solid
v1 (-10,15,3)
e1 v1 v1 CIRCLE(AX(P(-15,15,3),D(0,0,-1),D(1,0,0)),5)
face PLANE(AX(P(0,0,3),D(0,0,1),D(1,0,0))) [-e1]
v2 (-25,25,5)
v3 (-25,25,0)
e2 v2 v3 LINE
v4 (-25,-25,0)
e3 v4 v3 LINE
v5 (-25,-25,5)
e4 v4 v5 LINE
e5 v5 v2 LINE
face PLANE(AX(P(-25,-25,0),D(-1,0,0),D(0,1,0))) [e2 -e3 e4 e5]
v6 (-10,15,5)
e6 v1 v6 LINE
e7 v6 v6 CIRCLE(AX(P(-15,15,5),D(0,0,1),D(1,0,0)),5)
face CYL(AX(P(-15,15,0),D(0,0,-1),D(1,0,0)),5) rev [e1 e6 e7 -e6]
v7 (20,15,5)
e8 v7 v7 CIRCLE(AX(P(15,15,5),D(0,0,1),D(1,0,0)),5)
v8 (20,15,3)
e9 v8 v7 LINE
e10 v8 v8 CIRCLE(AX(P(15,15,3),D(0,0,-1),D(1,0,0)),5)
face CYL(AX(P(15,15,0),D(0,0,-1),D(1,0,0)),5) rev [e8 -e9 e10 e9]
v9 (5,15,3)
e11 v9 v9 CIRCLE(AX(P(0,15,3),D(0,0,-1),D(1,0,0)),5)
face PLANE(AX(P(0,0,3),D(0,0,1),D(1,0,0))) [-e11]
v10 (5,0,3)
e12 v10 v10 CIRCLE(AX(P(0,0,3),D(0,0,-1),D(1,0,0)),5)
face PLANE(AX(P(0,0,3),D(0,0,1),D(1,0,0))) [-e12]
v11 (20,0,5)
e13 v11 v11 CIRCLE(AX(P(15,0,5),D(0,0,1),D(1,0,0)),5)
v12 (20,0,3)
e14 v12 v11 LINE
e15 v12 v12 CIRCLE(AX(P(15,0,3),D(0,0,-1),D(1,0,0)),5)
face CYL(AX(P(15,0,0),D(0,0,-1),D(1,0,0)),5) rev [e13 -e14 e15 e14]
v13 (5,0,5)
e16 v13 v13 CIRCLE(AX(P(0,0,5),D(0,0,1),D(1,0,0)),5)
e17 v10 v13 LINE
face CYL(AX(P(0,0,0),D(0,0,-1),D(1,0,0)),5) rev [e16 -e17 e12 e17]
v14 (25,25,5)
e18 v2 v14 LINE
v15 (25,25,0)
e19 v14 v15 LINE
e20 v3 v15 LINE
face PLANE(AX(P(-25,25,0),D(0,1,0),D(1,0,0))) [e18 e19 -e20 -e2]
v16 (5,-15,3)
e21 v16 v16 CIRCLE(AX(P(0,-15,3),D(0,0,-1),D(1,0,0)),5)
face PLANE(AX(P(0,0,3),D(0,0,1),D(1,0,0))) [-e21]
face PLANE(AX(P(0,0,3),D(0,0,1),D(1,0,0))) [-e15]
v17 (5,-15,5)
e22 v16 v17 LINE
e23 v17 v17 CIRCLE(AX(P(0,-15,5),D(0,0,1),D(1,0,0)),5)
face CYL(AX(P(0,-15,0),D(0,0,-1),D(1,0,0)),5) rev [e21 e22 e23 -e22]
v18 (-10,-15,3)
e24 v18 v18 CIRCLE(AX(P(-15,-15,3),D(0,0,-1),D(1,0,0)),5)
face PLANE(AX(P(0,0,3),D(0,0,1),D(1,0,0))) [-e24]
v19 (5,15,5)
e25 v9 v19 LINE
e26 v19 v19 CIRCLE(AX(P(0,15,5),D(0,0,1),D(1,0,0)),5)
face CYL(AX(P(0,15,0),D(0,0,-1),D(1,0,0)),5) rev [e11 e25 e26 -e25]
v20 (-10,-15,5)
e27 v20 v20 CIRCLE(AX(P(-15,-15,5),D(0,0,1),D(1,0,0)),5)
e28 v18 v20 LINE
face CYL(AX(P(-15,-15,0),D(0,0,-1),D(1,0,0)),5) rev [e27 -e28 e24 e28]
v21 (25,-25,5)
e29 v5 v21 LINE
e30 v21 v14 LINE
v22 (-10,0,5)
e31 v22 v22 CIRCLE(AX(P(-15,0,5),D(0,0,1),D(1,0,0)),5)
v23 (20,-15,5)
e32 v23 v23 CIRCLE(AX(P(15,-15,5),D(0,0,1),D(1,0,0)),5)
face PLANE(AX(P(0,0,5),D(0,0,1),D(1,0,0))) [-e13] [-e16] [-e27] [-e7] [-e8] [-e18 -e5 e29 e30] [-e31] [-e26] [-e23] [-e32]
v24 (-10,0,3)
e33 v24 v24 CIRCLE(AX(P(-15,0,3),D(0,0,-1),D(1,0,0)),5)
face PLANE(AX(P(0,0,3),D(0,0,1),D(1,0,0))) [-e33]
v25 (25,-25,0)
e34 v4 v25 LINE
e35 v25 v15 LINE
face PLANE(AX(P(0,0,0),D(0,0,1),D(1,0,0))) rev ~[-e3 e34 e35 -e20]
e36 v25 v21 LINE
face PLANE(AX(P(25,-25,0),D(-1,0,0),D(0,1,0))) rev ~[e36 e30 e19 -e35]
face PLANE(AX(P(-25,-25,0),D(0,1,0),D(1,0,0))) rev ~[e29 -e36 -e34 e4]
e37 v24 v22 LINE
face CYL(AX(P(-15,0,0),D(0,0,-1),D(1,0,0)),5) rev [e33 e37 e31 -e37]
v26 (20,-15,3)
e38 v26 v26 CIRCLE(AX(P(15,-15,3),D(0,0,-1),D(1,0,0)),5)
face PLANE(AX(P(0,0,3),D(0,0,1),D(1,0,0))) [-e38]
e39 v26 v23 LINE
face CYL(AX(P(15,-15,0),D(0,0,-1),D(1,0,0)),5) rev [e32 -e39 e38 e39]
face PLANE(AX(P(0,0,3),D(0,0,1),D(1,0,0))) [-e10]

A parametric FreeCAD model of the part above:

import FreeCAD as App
import Part
import Sketcher

V = App.Vector
Q = App.Units.Quantity

doc = App.newDocument("Part")
body = doc.addObject("PartDesign::Body", "Body")

# Sketch on XY plane
sketch1 = body.newObject("Sketcher::SketchObject", "Sketch")
sketch1.AttachmentSupport = (doc.getObject("XY_Plane"), [""])
sketch1.MapMode = "FlatFace"
sketch1.addGeometry(Part.LineSegment(V(-25, 25, 0), V(-25, -25, 0)), False)
sketch1.addGeometry(Part.LineSegment(V(-25, -25, 0), V(25, -25, 0)), False)
sketch1.addGeometry(Part.LineSegment(V(25, -25, 0), V(25, 25, 0)), False)
sketch1.addGeometry(Part.LineSegment(V(25, 25, 0), V(-25, 25, 0)), False)
sketch1.addConstraint(Sketcher.Constraint("Coincident", 0, 2, 1, 1))
sketch1.addConstraint(Sketcher.Constraint("Coincident", 1, 2, 2, 1))
sketch1.addConstraint(Sketcher.Constraint("Coincident", 2, 2, 3, 1))
sketch1.addConstraint(Sketcher.Constraint("Coincident", 3, 2, 0, 1))
sketch1.addConstraint(Sketcher.Constraint("Vertical", 0))
sketch1.addConstraint(Sketcher.Constraint("Horizontal", 1))
sketch1.addConstraint(Sketcher.Constraint("Vertical", 2))
sketch1.addConstraint(Sketcher.Constraint("Horizontal", 3))
sketch1.addConstraint(Sketcher.Constraint("Symmetric", 0, 2, 2, 2, -1, 1))
sketch1.addConstraint(Sketcher.Constraint("Equal", 3, 0))
sketch1.addConstraint(Sketcher.Constraint("DistanceX", 1, 1, 1, 2, Q("50 mm")))
pad1 = body.newObject("PartDesign::Pad", "Pad")
pad1.Profile = sketch1
pad1.Length = 3

# Sketch on XY plane
sketch2 = body.newObject("Sketcher::SketchObject", "Sketch001")
sketch2.AttachmentSupport = (doc.getObject("XY_Plane"), [""])
sketch2.MapMode = "FlatFace"
sketch2.addGeometry(Part.LineSegment(V(-25, 25, 0), V(-25, -25, 0)), False)
sketch2.addGeometry(Part.LineSegment(V(-25, -25, 0), V(25, -25, 0)), False)
sketch2.addGeometry(Part.LineSegment(V(25, -25, 0), V(25, 25, 0)), False)
sketch2.addGeometry(Part.LineSegment(V(25, 25, 0), V(-25, 25, 0)), False)
sketch2.addGeometry(Part.Circle(V(-15, -15, 0), V(0, 0, 1), 5), False)
sketch2.addGeometry(Part.Circle(V(0, -15, 0), V(0, 0, 1), 5), False)
sketch2.addGeometry(Part.Circle(V(15, -15, 0), V(0, 0, 1), 5), False)
sketch2.addGeometry(Part.Circle(V(-15, 0, 0), V(0, 0, 1), 5), False)
sketch2.addGeometry(Part.Circle(V(-15, 15, 0), V(0, 0, 1), 5), False)
sketch2.addGeometry(Part.Circle(V(0, 0, 0), V(0, 0, 1), 5), False)
sketch2.addGeometry(Part.Circle(V(15, 0, 0), V(0, 0, 1), 5), False)
sketch2.addGeometry(Part.Circle(V(0, 15, 0), V(0, 0, 1), 5), False)
sketch2.addGeometry(Part.Circle(V(15, 15, 0), V(0, 0, 1), 5), False)
sketch2.addConstraint(Sketcher.Constraint("Coincident", 0, 2, 1, 1))
sketch2.addConstraint(Sketcher.Constraint("Coincident", 1, 2, 2, 1))
sketch2.addConstraint(Sketcher.Constraint("Coincident", 2, 2, 3, 1))
sketch2.addConstraint(Sketcher.Constraint("Coincident", 3, 2, 0, 1))
sketch2.addConstraint(Sketcher.Constraint("Vertical", 0))
sketch2.addConstraint(Sketcher.Constraint("Horizontal", 1))
sketch2.addConstraint(Sketcher.Constraint("Vertical", 2))
sketch2.addConstraint(Sketcher.Constraint("Horizontal", 3))
sketch2.addConstraint(Sketcher.Constraint("Coincident", 9, 3, -1, 1))
sketch2.addConstraint(Sketcher.Constraint("Equal", 4, 5))
sketch2.addConstraint(Sketcher.Constraint("Equal", 5, 6))
sketch2.addConstraint(Sketcher.Constraint("Equal", 6, 7))
sketch2.addConstraint(Sketcher.Constraint("Equal", 7, 8))
sketch2.addConstraint(Sketcher.Constraint("Equal", 8, 9))
sketch2.addConstraint(Sketcher.Constraint("Equal", 9, 10))
sketch2.addConstraint(Sketcher.Constraint("Equal", 10, 11))
sketch2.addConstraint(Sketcher.Constraint("Equal", 11, 12))
sketch2.addConstraint(Sketcher.Constraint("Symmetric", 6, 3, 8, 3, -1, 1))
sketch2.addConstraint(Sketcher.Constraint("Symmetric", 7, 3, 10, 3, -1, 1))
sketch2.addConstraint(Sketcher.Constraint("Symmetric", 5, 3, 11, 3, -1, 1))
sketch2.addConstraint(Sketcher.Constraint("Symmetric", 4, 3, 12, 3, -1, 1))
sketch2.addConstraint(Sketcher.Constraint("Symmetric", 0, 2, 2, 2, -1, 1))
sketch2.addConstraint(Sketcher.Constraint("Symmetric", 4, 3, 6, 3, -2))
sketch2.addConstraint(Sketcher.Constraint("PointOnObject", 5, 3, -2))
sketch2.addConstraint(Sketcher.Constraint("PointOnObject", 7, 3, -1))
sketch2.addConstraint(Sketcher.Constraint("Horizontal", 4, 3, 5, 3))
sketch2.addConstraint(Sketcher.Constraint("Vertical", 4, 3, 7, 3))
sketch2.addConstraint(Sketcher.Constraint("Equal", 3, 0))
sketch2.addConstraint(Sketcher.Constraint("Diameter", 4, Q("10 mm")))
sketch2.addConstraint(Sketcher.Constraint("DistanceX", 1, 1, 1, 2, Q("50 mm")))
sketch2.addConstraint(Sketcher.Constraint("DistanceX", 4, 3, -1, 1, Q("15 mm")))
sketch2.addConstraint(Sketcher.Constraint("DistanceY", 4, 3, -1, 1, Q("15 mm")))
pad2 = body.newObject("PartDesign::Pad", "Pad001")
pad2.Profile = sketch2
pad2.Length = 5

doc.recompute()
